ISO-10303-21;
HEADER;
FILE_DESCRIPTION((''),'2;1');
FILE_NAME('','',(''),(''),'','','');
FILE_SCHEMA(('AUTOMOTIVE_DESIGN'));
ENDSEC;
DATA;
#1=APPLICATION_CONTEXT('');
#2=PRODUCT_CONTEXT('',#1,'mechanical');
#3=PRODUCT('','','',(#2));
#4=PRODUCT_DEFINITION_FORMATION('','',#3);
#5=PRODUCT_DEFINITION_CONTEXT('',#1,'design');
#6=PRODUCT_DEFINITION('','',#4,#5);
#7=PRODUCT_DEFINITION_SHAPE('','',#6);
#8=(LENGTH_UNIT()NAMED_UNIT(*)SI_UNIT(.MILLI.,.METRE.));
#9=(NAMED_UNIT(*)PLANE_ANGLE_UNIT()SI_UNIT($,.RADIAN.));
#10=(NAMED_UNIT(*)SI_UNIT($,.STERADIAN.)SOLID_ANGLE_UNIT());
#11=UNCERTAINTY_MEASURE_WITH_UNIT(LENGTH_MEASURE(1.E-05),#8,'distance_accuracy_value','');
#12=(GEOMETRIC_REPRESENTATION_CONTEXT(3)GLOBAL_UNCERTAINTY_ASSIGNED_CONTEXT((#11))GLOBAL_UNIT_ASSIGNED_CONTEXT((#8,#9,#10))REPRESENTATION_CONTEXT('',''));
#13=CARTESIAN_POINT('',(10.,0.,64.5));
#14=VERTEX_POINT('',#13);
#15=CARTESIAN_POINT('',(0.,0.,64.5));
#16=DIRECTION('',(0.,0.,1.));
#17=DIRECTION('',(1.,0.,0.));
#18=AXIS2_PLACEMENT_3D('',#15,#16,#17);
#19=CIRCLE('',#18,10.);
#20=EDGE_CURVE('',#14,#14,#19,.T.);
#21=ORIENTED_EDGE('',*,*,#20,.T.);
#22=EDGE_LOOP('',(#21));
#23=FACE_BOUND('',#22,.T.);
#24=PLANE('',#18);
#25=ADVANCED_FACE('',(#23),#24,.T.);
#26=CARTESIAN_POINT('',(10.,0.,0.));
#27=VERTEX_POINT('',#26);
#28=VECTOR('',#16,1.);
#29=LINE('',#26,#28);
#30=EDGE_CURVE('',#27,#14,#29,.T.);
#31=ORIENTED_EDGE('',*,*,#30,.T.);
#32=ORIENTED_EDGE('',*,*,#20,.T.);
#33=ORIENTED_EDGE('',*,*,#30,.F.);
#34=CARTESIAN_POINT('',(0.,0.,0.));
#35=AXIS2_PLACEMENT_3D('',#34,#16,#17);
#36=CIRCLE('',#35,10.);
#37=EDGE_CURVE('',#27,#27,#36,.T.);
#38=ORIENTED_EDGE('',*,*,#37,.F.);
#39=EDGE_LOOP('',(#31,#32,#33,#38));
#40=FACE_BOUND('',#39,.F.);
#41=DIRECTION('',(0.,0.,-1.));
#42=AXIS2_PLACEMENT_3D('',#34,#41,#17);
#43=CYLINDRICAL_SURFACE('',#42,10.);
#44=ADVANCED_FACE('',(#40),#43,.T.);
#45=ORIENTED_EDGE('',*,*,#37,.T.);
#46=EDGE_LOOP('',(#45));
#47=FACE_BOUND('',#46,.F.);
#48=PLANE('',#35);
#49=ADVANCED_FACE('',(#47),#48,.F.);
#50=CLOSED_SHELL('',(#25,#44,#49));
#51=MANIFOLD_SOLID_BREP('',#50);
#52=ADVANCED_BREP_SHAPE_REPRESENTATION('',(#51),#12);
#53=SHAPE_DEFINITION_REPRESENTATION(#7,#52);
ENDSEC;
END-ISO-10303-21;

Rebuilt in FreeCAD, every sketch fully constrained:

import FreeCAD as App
import Part
import Sketcher

V = App.Vector

doc = App.newDocument("Part")
params = doc.addObject("Spreadsheet::Sheet", "Params")
for row, (alias, value) in enumerate([
    ("sketch1_diameter", "20 mm"),
    ("pad1_length", "64.5 mm"),
], start=1):
    params.set(f"A{row}", alias)
    params.set(f"B{row}", "=" + value)
    params.setAlias(f"B{row}", alias)

body = doc.addObject("PartDesign::Body", "Body")

sketch1 = body.newObject("Sketcher::SketchObject", "Sketch")
sketch1.AttachmentSupport = (doc.getObject("XY_Plane"), [""])
sketch1.MapMode = "FlatFace"
sketch1.addGeometry(Part.Circle(V(0, 0, 0), V(0, 0, 1), 10), False)
sketch1.addConstraint(Sketcher.Constraint("Coincident", 0, 3, -1, 1))
sketch1.addConstraint(Sketcher.Constraint("Diameter", 0, 20.0))
sketch1.setExpression("Constraints[1]", "Params.sketch1_diameter")
pad1 = body.newObject("PartDesign::Pad", "Pad")
pad1.Profile = sketch1
pad1.setExpression("Length", "Params.pad1_length")

doc.recompute()
